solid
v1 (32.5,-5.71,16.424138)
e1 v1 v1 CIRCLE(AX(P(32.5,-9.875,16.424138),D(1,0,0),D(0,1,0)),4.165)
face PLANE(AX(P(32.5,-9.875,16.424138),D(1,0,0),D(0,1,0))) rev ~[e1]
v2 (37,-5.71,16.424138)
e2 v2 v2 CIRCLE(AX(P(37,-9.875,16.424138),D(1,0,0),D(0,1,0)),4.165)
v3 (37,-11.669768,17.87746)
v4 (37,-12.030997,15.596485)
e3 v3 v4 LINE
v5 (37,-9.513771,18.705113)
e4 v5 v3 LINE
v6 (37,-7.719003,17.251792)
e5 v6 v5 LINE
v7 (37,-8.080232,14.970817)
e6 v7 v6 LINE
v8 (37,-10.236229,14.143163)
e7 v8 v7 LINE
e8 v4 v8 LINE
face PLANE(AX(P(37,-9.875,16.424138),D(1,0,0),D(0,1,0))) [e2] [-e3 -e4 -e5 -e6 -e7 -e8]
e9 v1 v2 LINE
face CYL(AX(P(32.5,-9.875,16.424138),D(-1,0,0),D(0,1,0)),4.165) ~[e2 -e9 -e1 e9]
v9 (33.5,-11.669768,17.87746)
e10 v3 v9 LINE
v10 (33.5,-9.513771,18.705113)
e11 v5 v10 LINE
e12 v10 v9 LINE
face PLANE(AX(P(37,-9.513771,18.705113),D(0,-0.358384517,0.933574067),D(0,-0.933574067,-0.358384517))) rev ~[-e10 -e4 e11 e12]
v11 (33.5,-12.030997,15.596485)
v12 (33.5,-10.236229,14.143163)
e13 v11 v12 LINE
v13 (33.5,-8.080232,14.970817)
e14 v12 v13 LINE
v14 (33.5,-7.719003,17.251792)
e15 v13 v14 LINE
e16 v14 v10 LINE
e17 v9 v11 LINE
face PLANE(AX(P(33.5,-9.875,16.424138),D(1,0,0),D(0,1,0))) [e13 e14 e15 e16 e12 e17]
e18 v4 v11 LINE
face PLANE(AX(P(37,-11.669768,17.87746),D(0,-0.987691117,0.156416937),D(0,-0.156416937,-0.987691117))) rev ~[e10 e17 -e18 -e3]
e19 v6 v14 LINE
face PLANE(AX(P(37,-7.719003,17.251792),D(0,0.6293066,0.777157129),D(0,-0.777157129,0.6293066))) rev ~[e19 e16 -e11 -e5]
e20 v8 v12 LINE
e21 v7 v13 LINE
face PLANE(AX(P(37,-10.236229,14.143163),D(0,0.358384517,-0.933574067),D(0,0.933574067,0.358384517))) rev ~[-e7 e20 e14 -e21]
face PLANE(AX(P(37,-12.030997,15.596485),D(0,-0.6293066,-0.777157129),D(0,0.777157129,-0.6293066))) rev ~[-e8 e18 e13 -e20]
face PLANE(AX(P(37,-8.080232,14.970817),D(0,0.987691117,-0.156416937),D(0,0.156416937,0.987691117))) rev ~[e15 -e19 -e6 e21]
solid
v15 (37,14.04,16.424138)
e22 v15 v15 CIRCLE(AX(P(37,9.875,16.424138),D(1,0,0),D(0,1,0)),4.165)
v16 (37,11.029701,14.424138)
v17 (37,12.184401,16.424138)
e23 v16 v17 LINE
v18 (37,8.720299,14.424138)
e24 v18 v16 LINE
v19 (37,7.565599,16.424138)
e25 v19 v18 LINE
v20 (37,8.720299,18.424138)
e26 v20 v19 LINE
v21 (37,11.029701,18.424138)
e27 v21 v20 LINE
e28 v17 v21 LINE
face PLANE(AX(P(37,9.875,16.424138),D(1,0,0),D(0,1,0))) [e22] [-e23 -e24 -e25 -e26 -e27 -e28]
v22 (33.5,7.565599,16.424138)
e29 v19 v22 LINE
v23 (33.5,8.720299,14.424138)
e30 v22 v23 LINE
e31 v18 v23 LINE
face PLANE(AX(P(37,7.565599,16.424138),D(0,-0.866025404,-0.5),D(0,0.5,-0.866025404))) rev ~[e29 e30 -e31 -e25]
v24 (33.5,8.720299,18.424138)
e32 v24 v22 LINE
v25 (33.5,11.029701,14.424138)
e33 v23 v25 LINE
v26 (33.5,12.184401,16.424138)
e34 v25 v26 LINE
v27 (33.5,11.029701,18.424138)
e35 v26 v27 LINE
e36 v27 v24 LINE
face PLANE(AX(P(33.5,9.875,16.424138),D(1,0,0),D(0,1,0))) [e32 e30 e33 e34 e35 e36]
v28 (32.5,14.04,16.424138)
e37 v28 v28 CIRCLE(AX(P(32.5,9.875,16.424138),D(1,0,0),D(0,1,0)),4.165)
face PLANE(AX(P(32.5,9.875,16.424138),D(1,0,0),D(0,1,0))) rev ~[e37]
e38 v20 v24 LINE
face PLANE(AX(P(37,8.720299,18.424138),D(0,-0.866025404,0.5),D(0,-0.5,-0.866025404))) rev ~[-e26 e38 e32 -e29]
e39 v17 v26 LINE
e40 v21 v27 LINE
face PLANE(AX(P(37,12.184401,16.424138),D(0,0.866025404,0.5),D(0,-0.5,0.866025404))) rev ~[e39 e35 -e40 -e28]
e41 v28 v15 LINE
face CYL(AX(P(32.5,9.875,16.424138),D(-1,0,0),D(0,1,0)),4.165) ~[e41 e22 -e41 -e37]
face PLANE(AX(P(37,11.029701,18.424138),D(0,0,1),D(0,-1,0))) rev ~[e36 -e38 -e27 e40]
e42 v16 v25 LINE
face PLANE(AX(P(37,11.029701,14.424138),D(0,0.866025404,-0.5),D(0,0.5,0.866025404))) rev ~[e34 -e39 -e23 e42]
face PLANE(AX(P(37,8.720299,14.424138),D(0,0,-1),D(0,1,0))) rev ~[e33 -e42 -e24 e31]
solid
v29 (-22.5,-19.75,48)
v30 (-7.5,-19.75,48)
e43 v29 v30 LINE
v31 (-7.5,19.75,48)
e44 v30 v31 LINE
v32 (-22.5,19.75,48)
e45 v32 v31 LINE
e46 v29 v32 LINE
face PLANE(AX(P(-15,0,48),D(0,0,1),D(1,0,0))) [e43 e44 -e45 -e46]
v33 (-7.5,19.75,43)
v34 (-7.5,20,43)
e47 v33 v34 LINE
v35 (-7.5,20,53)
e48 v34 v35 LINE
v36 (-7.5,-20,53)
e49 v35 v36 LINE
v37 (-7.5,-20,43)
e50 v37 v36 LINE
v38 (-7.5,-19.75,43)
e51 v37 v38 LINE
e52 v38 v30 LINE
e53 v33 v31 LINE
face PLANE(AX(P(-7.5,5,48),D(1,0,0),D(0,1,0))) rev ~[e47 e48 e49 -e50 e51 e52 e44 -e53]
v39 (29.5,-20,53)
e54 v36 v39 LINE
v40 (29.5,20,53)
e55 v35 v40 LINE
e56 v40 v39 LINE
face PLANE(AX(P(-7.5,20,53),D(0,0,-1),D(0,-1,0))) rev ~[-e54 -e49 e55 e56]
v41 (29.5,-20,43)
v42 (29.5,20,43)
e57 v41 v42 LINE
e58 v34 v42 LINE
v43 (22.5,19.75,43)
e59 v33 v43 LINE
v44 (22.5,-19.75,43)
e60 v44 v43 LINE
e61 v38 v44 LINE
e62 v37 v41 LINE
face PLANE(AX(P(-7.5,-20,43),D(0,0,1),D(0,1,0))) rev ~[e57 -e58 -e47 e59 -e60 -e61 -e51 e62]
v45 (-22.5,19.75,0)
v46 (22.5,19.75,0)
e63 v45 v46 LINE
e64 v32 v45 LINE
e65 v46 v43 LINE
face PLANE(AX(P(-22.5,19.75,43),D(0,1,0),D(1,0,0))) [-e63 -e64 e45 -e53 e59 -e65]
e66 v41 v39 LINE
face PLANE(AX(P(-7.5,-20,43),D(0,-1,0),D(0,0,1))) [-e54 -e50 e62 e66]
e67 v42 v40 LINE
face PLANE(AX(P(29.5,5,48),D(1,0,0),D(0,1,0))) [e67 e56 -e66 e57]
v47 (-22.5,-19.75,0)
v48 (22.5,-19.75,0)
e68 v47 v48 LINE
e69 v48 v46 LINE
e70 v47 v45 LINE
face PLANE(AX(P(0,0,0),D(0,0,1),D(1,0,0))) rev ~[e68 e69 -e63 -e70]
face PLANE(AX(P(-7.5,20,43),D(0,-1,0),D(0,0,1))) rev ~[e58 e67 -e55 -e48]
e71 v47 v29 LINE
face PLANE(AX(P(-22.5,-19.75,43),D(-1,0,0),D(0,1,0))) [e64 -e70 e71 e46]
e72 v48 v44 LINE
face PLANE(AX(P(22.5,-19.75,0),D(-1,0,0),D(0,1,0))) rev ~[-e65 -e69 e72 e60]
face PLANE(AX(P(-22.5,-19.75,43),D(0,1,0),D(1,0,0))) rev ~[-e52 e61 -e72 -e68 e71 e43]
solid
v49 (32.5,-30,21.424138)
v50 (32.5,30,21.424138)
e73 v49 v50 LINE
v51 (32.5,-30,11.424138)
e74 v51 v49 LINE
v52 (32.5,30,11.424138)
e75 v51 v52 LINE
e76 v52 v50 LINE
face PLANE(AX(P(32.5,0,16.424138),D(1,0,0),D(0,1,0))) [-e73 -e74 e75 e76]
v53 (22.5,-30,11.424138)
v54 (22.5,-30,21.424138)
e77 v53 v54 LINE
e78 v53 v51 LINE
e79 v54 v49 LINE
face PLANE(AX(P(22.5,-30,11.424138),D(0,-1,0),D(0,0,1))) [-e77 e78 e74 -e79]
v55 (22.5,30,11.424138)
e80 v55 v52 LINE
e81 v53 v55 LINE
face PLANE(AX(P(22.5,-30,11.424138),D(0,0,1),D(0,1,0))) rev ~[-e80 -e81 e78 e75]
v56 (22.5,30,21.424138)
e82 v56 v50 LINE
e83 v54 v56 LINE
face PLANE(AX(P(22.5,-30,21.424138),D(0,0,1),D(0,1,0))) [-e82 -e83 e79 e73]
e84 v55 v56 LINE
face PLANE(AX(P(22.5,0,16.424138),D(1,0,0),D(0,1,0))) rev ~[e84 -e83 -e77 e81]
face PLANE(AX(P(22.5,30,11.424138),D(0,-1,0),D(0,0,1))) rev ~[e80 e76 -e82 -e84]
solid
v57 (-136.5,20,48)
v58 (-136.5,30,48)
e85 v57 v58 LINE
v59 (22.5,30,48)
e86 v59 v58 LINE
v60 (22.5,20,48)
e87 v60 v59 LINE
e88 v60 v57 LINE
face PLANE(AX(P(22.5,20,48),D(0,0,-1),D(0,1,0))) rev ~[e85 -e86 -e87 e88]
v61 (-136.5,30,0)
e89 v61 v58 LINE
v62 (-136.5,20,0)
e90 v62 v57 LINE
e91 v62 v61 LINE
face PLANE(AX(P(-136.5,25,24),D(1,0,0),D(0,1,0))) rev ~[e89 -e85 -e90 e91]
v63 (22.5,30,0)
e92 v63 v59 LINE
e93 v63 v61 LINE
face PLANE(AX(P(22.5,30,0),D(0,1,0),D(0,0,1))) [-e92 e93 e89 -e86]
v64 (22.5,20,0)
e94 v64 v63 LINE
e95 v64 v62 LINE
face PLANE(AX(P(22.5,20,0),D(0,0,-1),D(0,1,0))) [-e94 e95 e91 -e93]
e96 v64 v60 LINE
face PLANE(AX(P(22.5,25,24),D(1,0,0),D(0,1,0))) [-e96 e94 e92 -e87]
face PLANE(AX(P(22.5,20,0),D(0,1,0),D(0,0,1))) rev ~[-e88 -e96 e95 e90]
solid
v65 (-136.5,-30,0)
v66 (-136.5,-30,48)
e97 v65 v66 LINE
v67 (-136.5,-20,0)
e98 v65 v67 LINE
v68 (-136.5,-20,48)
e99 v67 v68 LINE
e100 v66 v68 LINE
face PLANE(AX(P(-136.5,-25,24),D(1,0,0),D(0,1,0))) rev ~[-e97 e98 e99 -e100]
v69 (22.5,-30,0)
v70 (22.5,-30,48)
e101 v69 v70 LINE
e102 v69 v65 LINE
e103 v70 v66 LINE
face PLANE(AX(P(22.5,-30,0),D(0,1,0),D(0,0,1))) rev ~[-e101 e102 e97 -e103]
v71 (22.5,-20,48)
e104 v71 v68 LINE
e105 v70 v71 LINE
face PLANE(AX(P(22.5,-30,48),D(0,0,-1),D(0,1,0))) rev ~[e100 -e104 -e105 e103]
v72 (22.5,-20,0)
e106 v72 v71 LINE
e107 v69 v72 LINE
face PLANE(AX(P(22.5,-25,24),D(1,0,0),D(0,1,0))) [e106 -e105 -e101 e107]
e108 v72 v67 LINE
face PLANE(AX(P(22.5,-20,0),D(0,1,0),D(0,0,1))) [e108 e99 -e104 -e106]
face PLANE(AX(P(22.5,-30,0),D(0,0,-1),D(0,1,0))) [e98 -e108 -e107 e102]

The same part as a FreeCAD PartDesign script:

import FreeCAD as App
import Part
import Sketcher

V = App.Vector
Q = App.Units.Quantity


def add_polygon(sketch, points):
    """Adds a closed chain of lines whose ends are joined by coincident constraints."""
    first, n = sketch.GeometryCount, len(points)
    for a, b in zip(points, points[1:] + points[:1]):
        sketch.addGeometry(Part.LineSegment(App.Vector(*a, 0), App.Vector(*b, 0)), False)
    for i in range(n):
        sketch.addConstraint(Sketcher.Constraint("Coincident", first + i, 2, first + (i + 1) % n, 1))

doc = App.newDocument("Part")
body = doc.addObject("PartDesign::Body", "Body")

# Sketch on XY plane
sketch1 = doc.addObject("Sketcher::SketchObject", "Sketch")
body.addObject(sketch1)
sketch1.AttachmentSupport = (doc.XY_Plane, [""])
sketch1.MapMode = "FlatFace"
add_polygon(sketch1, [(-22.5, 19.75), (-22.5, -19.75), (22.5, -19.75), (22.5, 19.75)])  # lines 0-3
sketch1.addConstraint([
    Sketcher.Constraint("Vertical", 0),
    Sketcher.Constraint("Horizontal", 1),
    Sketcher.Constraint("Vertical", 2),
    Sketcher.Constraint("Horizontal", 3),
    Sketcher.Constraint("Symmetric", 0, 2, 2, 2, -1, 1),
    Sketcher.Constraint("DistanceX", 1, 1, 1, 2, 45.0),
    Sketcher.Constraint("DistanceY", 0, 2, 0, 1, 39.5),
])
pad1 = doc.addObject("PartDesign::Pad", "Pad")
body.addObject(pad1)
pad1.Profile = sketch1
pad1.Length = 43

# Sketch on XY plane
sketch2 = doc.addObject("Sketcher::SketchObject", "Sketch001")
body.addObject(sketch2)
sketch2.AttachmentSupport = (doc.XY_Plane, [""])
sketch2.MapMode = "FlatFace"
sketch2.AttachmentOffset = App.Placement(V(0, 0, 43), App.Rotation())
add_polygon(sketch2, [(-22.5, 19.75), (-22.5, -19.75), (-7.5, -19.75), (-7.5, 19.75)])  # lines 0-3
sketch2.addConstraint([
    Sketcher.Constraint("Vertical", 0),
    Sketcher.Constraint("Horizontal", 1),
    Sketcher.Constraint("Vertical", 2),
    Sketcher.Constraint("Horizontal", 3),
    Sketcher.Constraint("DistanceX", 1, 1, 1, 2, 15.0),
    Sketcher.Constraint("DistanceY", 0, 2, 0, 1, 39.5),
    Sketcher.Constraint("DistanceX", 0, 2, -1, 1, 22.5),
    Sketcher.Constraint("DistanceY", 0, 2, -1, 1, 19.75),
])
pad2 = doc.addObject("PartDesign::Pad", "Pad001")
body.addObject(pad2)
pad2.Profile = sketch2
pad2.Length = 5

# Sketch on YZ plane
sketch3 = doc.addObject("Sketcher::SketchObject", "Sketch002")
body.addObject(sketch3)
sketch3.AttachmentSupport = (doc.YZ_Plane, [""])
sketch3.MapMode = "FlatFace"
sketch3.AttachmentOffset = App.Placement(V(0, 0, -7.5), App.Rotation())
add_polygon(sketch3, [(20, 43), (20, 53), (-20, 53), (-20, 43)])  # lines 0-3
sketch3.addConstraint([
    Sketcher.Constraint("Vertical", 0),
    Sketcher.Constraint("Horizontal", 1),
    Sketcher.Constraint("Vertical", 2),
    Sketcher.Constraint("Horizontal", 3),
    Sketcher.Constraint("DistanceX", 1, 2, 1, 1, 40.0),
    Sketcher.Constraint("DistanceY", 0, 1, 0, 2, 10.0),
    Sketcher.Constraint("DistanceX", -1, 1, 0, 2, 20.0),
    Sketcher.Constraint("DistanceY", -1, 1, 0, 2, 53.0),
])
pad3 = doc.addObject("PartDesign::Pad", "Pad002")
body.addObject(pad3)
pad3.Profile = sketch3
pad3.Length = 37
body2 = doc.addObject("PartDesign::Body", "Body001")

# Sketch on YZ plane
sketch4 = doc.addObject("Sketcher::SketchObject", "Sketch003")
body2.addObject(sketch4)
sketch4.AttachmentSupport = (doc.getObject("YZ_Plane001"), [""])
sketch4.MapMode = "FlatFace"
sketch4.AttachmentOffset = App.Placement(V(0, 0, 22.5), App.Rotation())
add_polygon(sketch4, [(20, 48), (20, 0), (30, 0), (30, 48)])  # lines 0-3
sketch4.addConstraint([
    Sketcher.Constraint("Vertical", 0),
    Sketcher.Constraint("Horizontal", 1),
    Sketcher.Constraint("Vertical", 2),
    Sketcher.Constraint("Horizontal", 3),
    Sketcher.Constraint("PointOnObject", 0, 2, -1),
    Sketcher.Constraint("DistanceX", 1, 1, 1, 2, 10.0),
    Sketcher.Constraint("DistanceY", 0, 2, 0, 1, 48.0),
    Sketcher.Constraint("DistanceX", -1, 1, 0, 2, 20.0),
])
pad4 = doc.addObject("PartDesign::Pad", "Pad003")
body2.addObject(pad4)
pad4.Profile = sketch4
pad4.Length = 159
pad4.Reversed = True
body3 = doc.addObject("PartDesign::Body", "Body002")

# Sketch on YZ plane
sketch5 = doc.addObject("Sketcher::SketchObject", "Sketch004")
body3.addObject(sketch5)
sketch5.AttachmentSupport = (doc.getObject("YZ_Plane002"), [""])
sketch5.MapMode = "FlatFace"
sketch5.AttachmentOffset = App.Placement(V(0, 0, 22.5), App.Rotation())
add_polygon(sketch5, [(-30, 48), (-30, 0), (-20, 0), (-20, 48)])  # lines 0-3
sketch5.addConstraint([
    Sketcher.Constraint("Vertical", 0),
    Sketcher.Constraint("Horizontal", 1),
    Sketcher.Constraint("Vertical", 2),
    Sketcher.Constraint("Horizontal", 3),
    Sketcher.Constraint("PointOnObject", 0, 2, -1),
    Sketcher.Constraint("DistanceX", 1, 1, 1, 2, 10.0),
    Sketcher.Constraint("DistanceY", 0, 2, 0, 1, 48.0),
    Sketcher.Constraint("DistanceX", 0, 2, -1, 1, 30.0),
])
pad5 = doc.addObject("PartDesign::Pad", "Pad004")
body3.addObject(pad5)
pad5.Profile = sketch5
pad5.Length = 159
pad5.Reversed = True
body4 = doc.addObject("PartDesign::Body", "Body003")

# Sketch on YZ plane
sketch6 = doc.addObject("Sketcher::SketchObject", "Sketch005")
body4.addObject(sketch6)
sketch6.AttachmentSupport = (doc.getObject("YZ_Plane003"), [""])
sketch6.MapMode = "FlatFace"
sketch6.AttachmentOffset = App.Placement(V(0, 0, 22.5), App.Rotation())
add_polygon(sketch6, [(-30, 21.424138), (-30, 11.424138), (30, 11.424138), (30, 21.424138)])  # lines 0-3
sketch6.addConstraint([
    Sketcher.Constraint("Vertical", 0),
    Sketcher.Constraint("Horizontal", 1),
    Sketcher.Constraint("Vertical", 2),
    Sketcher.Constraint("Horizontal", 3),
    Sketcher.Constraint("DistanceX", 1, 1, 1, 2, 60.0),
    Sketcher.Constraint("DistanceY", 0, 2, 0, 1, 10.0),
    Sketcher.Constraint("DistanceX", 0, 2, -1, 1, 30.0),
    Sketcher.Constraint("DistanceY", -1, 1, 0, 2, 11.424138),
])
pad6 = doc.addObject("PartDesign::Pad", "Pad005")
body4.addObject(pad6)
pad6.Profile = sketch6
pad6.Length = 10
body5 = doc.addObject("PartDesign::Body", "Body004")

# Sketch on YZ plane
sketch7 = doc.addObject("Sketcher::SketchObject", "Sketch006")
body5.addObject(sketch7)
sketch7.AttachmentSupport = (doc.getObject("YZ_Plane004"), [""])
sketch7.MapMode = "FlatFace"
sketch7.AttachmentOffset = App.Placement(V(0, 0, 32.5), App.Rotation())
sketch7.addGeometry(Part.Circle(V(-9.875, 16.424138, 0), V(0, 0, 1), 4.165), False)
sketch7.addConstraint([
    Sketcher.Constraint("Diameter", 0, 8.33),
    Sketcher.Constraint("DistanceX", 0, 3, -1, 1, 9.875),
    Sketcher.Constraint("DistanceY", -1, 1, 0, 3, 16.424138),
])
pad7 = doc.addObject("PartDesign::Pad", "Pad006")
body5.addObject(pad7)
pad7.Profile = sketch7
pad7.Length = 4.5
body6 = doc.addObject("PartDesign::Body", "Body005")

# Sketch on YZ plane
sketch8 = doc.addObject("Sketcher::SketchObject", "Sketch007")
body6.addObject(sketch8)
sketch8.AttachmentSupport = (doc.getObject("YZ_Plane005"), [""])
sketch8.MapMode = "FlatFace"
sketch8.AttachmentOffset = App.Placement(V(0, 0, 32.5), App.Rotation())
sketch8.addGeometry(Part.Circle(V(9.875, 16.424138, 0), V(0, 0, 1), 4.165), False)
sketch8.addConstraint([
    Sketcher.Constraint("Diameter", 0, 8.33),
    Sketcher.Constraint("DistanceX", -1, 1, 0, 3, 9.875),
    Sketcher.Constraint("DistanceY", -1, 1, 0, 3, 16.424138),
])
pad8 = doc.addObject("PartDesign::Pad", "Pad007")
body6.addObject(pad8)
pad8.Profile = sketch8
pad8.Length = 4.5
body7 = doc.addObject("PartDesign::Body", "Body006")
body7.AllowCompound = True

# Sketch on YZ plane
sketch9 = doc.addObject("Sketcher::SketchObject", "Sketch008")
body7.addObject(sketch9)
sketch9.AttachmentSupport = (doc.getObject("YZ_Plane006"), [""])
sketch9.MapMode = "FlatFace"
sketch9.AttachmentOffset = App.Placement(V(0, 0, 37), App.Rotation())
add_polygon(sketch9, [(-10.236229, 14.143163), (-8.080232, 14.970817), (-7.719003, 17.251792), (-9.513771, 18.705113), (-11.669768, 17.87746), (-12.030997, 15.596485)])  # lines 0-5
add_polygon(sketch9, [(8.720299, 14.424138), (11.029701, 14.424138), (12.184401, 16.424138), (11.029701, 18.424138), (8.720299, 18.424138), (7.565599, 16.424138)])  # lines 6-11
sketch9.addConstraint([
    Sketcher.Constraint("Horizontal", 6),
    Sketcher.Constraint("Horizontal", 9),
    Sketcher.Constraint("Parallel", 0, 3),
    Sketcher.Constraint("Parallel", 1, 4),
    Sketcher.Constraint("Parallel", 2, 5),
    Sketcher.Constraint("Parallel", 7, 10),
    Sketcher.Constraint("Parallel", 8, 11),
    Sketcher.Constraint("Horizontal", 7, 2, 10, 2),
    Sketcher.Constraint("Vertical", 6, 2, 8, 2),
    Sketcher.Constraint("Vertical", 9, 2, 11, 2),
    Sketcher.Constraint("Equal", 0, 1),
    Sketcher.Constraint("Equal", 1, 2),
    Sketcher.Constraint("Equal", 2, 3),
    Sketcher.Constraint("Equal", 5, 7),
    Sketcher.Constraint("Angle", 7, Q("60 deg")),
    Sketcher.Constraint("DistanceY", 6, 2, 7, 2, 2.0),
    Sketcher.Constraint("DistanceX", 6, 1, 6, 2, 2.309401),
    Sketcher.Constraint("DistanceX", -1, 1, 6, 2, 11.029701),
    Sketcher.Constraint("DistanceX", 1, 2, 10, 2, 15.284602),
    Sketcher.Constraint("DistanceY", -1, 1, 1, 2, 17.251792),
    Sketcher.Constraint("DistanceX", 2, 2, -1, 1, 9.513771),
    Sketcher.Constraint("DistanceY", -1, 1, 3, 2, 17.87746),
    Sketcher.Constraint("DistanceX", 5, 2, -1, 1, 10.236229),
    Sketcher.Constraint("DistanceY", -1, 1, 6, 2, 14.424138),
])
pad9 = doc.addObject("PartDesign::Pad", "Pad008")
body7.addObject(pad9)
pad9.Profile = sketch9
pad9.Length = 3.5
pad9.Reversed = True
doc.recompute()

body8 = doc.addObject("PartDesign::Body", "Body007")
body8.BaseFeature = body7
boolean = doc.addObject("PartDesign::Boolean", "Boolean")
body5.addObject(boolean)
boolean.Type = "Cut"
boolean.addObjects([body8])
doc.recompute()

boolean2 = doc.addObject("PartDesign::Boolean", "Boolean001")
body6.addObject(boolean2)
boolean2.Type = "Cut"
boolean2.addObjects([body7])

doc.recompute()
